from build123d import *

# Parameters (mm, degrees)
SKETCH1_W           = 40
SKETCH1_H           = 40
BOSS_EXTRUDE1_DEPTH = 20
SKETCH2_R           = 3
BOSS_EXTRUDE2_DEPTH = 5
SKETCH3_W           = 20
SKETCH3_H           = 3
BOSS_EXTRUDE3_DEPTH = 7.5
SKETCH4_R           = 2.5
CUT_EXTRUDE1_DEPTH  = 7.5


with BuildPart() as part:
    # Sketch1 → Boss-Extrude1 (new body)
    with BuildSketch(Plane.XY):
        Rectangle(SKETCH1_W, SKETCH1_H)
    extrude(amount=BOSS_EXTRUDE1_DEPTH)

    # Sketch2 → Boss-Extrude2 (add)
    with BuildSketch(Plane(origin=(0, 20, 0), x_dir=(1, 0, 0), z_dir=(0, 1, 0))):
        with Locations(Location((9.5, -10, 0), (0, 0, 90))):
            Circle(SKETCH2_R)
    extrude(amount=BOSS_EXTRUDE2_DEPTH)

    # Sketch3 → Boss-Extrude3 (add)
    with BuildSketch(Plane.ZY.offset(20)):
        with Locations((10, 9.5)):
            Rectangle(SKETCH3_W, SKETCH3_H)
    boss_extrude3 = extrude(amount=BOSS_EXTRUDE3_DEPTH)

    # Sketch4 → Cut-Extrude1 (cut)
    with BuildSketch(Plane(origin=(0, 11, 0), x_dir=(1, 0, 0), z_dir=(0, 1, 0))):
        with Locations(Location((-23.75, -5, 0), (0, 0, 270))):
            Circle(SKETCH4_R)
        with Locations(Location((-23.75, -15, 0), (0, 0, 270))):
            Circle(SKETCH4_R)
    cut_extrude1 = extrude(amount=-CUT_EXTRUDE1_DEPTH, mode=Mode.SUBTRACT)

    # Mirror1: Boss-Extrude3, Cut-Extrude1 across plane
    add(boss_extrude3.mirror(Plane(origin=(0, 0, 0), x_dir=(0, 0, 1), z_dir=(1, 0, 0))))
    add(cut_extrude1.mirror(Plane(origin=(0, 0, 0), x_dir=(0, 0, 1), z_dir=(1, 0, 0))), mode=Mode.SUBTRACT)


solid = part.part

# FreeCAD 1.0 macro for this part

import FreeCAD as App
import Part
import Sketcher
from FreeCAD import Vector


def add_polygon(sketch, points):
    """Adds a closed chain of lines whose ends are joined by coincident constraints."""
    first, n = sketch.GeometryCount, len(points)
    for a, b in zip(points, points[1:] + points[:1]):
        sketch.addGeometry(Part.LineSegment(App.Vector(*a, 0), App.Vector(*b, 0)), False)
    for i in range(n):
        sketch.addConstraint(Sketcher.Constraint("Coincident", first + i, 2, first + (i + 1) % n, 1))

doc = App.newDocument("Part")
body = doc.addObject("PartDesign::Body", "Body")

sketch1 = body.newObject("Sketcher::SketchObject", "Sketch")
sketch1.AttachmentSupport = (doc.getObject("XY_Plane"), [""])
sketch1.MapMode = "FlatFace"
add_polygon(sketch1, [(-20, 20), (-20, -20), (20, -20), (20, 20)])
sketch1.addConstraint([
    Sketcher.Constraint("Vertical", 0),
    Sketcher.Constraint("Horizontal", 1),
    Sketcher.Constraint("Vertical", 2),
    Sketcher.Constraint("Horizontal", 3),
    Sketcher.Constraint("Symmetric", 0, 2, 2, 2, -1, 1),
    Sketcher.Constraint("Equal", 3, 0),
    Sketcher.Constraint("DistanceX", 1, 1, 1, 2, 40.0),
])
pad1 = body.newObject("PartDesign::Pad", "Pad")
pad1.Profile = sketch1
pad1.Length = 20

sketch2 = body.newObject("Sketcher::SketchObject", "Sketch001")
sketch2.AttachmentSupport = (doc.getObject("XZ_Plane"), [""])
sketch2.MapMode = "FlatFace"
sketch2.AttachmentOffset = App.Placement(Vector(0, 0, -20), App.Rotation())
sketch2.addGeometry(Part.Circle(Vector(9.5, 10, 0), Vector(0, 0, 1), 3), False)
sketch2.addConstraint([
    Sketcher.Constraint("Diameter", 0, 6.0),
    Sketcher.Constraint("DistanceY", -1, 1, 0, 3, 10.0),
    Sketcher.Constraint("DistanceX", -1, 1, 0, 3, 9.5),
])
pad2 = body.newObject("PartDesign::Pad", "Pad001")
pad2.Profile = sketch2
pad2.Length = 5
pad2.Reversed = True

sketch3 = body.newObject("Sketcher::SketchObject", "Sketch002")
sketch3.AttachmentSupport = (doc.getObject("YZ_Plane"), [""])
sketch3.MapMode = "FlatFace"
sketch3.AttachmentOffset = App.Placement(Vector(0, 0, -20), App.Rotation())
add_polygon(sketch3, [(11, 0), (8, 0), (8, 20), (11, 20)])
sketch3.addConstraint([
    Sketcher.Constraint("Horizontal", 0),
    Sketcher.Constraint("Vertical", 1),
    Sketcher.Constraint("Horizontal", 2),
    Sketcher.Constraint("Vertical", 3),
    Sketcher.Constraint("PointOnObject", 0, 2, -1),
    Sketcher.Constraint("DistanceX", 0, 2, 0, 1, 3.0),
    Sketcher.Constraint("DistanceY", 1, 1, 1, 2, 20.0),
    Sketcher.Constraint("DistanceX", -1, 1, 0, 2, 8.0),
])
pad3 = body.newObject("PartDesign::Pad", "Pad002")
pad3.Profile = sketch3
pad3.Length = 7.5
pad3.Reversed = True

sketch4 = body.newObject("Sketcher::SketchObject", "Sketch003")
sketch4.AttachmentSupport = (doc.getObject("XZ_Plane"), [""])
sketch4.MapMode = "FlatFace"
sketch4.AttachmentOffset = App.Placement(Vector(0, 0, -11), App.Rotation())
sketch4.addGeometry([
    Part.Circle(Vector(-23.8, 5, 0), Vector(0, 0, 1), 2.5),
    Part.Circle(Vector(-23.8, 15, 0), Vector(0, 0, 1), 2.5),
], False)
sketch4.addConstraint([
    Sketcher.Constraint("Equal", 0, 1),
    Sketcher.Constraint("Vertical", 0, 3, 1, 3),
    Sketcher.Constraint("Diameter", 0, 5.0),
    Sketcher.Constraint("DistanceY", -1, 1, 0, 3, 5.0),
    Sketcher.Constraint("DistanceY", -1, 1, 1, 3, 15.0),
    Sketcher.Constraint("DistanceX", 0, 3, -1, 1, 23.75),
])
pocket1 = body.newObject("PartDesign::Pocket", "Pocket")
pocket1.Profile = sketch4
pocket1.Length = 7.5
pocket1.Reversed = True
doc.recompute()

mirrored = body.newObject("PartDesign::Mirrored", "Mirrored")
mirrored.Originals = [pad3, pocket1]
mirrored.MirrorPlane = (doc.getObject("YZ_Plane"), [""])
body.Tip = mirrored

doc.recompute()
